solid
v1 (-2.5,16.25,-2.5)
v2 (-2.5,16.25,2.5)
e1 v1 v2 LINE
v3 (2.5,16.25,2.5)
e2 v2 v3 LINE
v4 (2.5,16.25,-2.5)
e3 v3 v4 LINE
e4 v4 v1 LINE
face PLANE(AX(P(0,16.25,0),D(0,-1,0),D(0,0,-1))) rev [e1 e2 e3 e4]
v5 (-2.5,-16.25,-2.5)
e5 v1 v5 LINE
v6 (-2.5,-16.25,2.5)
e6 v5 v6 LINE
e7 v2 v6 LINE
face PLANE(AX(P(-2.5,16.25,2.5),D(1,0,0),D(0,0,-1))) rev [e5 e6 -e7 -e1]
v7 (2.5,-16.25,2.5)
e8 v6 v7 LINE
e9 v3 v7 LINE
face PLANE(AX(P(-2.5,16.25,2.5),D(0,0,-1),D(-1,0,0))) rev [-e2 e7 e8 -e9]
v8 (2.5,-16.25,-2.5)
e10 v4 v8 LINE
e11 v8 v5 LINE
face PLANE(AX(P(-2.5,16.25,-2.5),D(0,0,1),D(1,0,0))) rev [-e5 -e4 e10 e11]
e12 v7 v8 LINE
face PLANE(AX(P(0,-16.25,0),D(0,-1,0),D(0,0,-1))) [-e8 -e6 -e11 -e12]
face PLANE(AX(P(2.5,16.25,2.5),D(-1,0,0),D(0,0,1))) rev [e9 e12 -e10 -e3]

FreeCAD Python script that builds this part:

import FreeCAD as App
import Part
import Sketcher

V = App.Vector
Q = App.Units.Quantity


def add_polygon(sketch, points):
    """Adds a closed chain of lines whose ends are joined by coincident constraints."""
    first, n = sketch.GeometryCount, len(points)
    for a, b in zip(points, points[1:] + points[:1]):
        sketch.addGeometry(Part.LineSegment(App.Vector(*a, 0), App.Vector(*b, 0)), False)
    for i in range(n):
        sketch.addConstraint(Sketcher.Constraint("Coincident", first + i, 2, first + (i + 1) % n, 1))

doc = App.newDocument("Part")
body = doc.addObject("PartDesign::Body", "Body")

# Sketch on XZ plane
sketch1 = body.newObject("Sketcher::SketchObject", "Sketch")
sketch1.AttachmentSupport = (doc.getObject("XZ_Plane"), [""])
sketch1.MapMode = "FlatFace"
add_polygon(sketch1, [(-2, -2), (-2, 2), (2, 2), (2, -2)])  # lines 0-3
sketch1.addConstraint([
    Sketcher.Constraint("Vertical", 0),
    Sketcher.Constraint("Horizontal", 1),
    Sketcher.Constraint("Vertical", 2),
    Sketcher.Constraint("Horizontal", 3),
    Sketcher.Constraint("Symmetric", 0, 2, 2, 2, -1, 1),
    Sketcher.Constraint("Equal", 3, 0),
    Sketcher.Constraint("DistanceX", 1, 1, 1, 2, Q("5 mm")),
])
pad1 = body.newObject("PartDesign::Pad", "Pad")
pad1.Profile = sketch1
pad1.Length = 32.5
pad1.Midplane = True

doc.recompute()
